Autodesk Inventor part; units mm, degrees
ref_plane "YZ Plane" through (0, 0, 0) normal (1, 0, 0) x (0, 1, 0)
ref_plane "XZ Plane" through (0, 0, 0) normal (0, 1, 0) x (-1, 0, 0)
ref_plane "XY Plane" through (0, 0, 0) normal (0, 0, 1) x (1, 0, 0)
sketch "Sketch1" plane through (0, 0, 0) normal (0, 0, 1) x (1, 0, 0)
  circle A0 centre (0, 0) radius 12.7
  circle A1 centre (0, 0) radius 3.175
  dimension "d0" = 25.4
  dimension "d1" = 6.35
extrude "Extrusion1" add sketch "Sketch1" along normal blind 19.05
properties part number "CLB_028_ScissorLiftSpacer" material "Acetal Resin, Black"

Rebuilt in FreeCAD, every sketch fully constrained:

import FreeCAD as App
import Part
import Sketcher
from FreeCAD import Vector
Q = App.Units.Quantity

doc = App.newDocument("Part")
params = doc.addObject("Spreadsheet::Sheet", "Params")
for row, (alias, value) in enumerate([
    ("sketch1_diameter", "1 in"),
    ("sketch1_diameter2", "0.25 in"),
    ("pad1_length", "0.75 in"),
], start=1):
    params.set(f"A{row}", alias)
    params.set(f"B{row}", "=" + value)
    params.setAlias(f"B{row}", alias)

body = doc.addObject("PartDesign::Body", "Body")

# Sketch on XY plane
sketch1 = doc.addObject("Sketcher::SketchObject", "Sketch")
body.addObject(sketch1)
sketch1.AttachmentSupport = (doc.XY_Plane, [""])
sketch1.MapMode = "FlatFace"
sketch1.addGeometry(Part.Circle(Vector(0, 0, 0), Vector(0, 0, 1), 12.7), False)
sketch1.addGeometry(Part.Circle(Vector(0, 0, 0), Vector(0, 0, 1), 3.2), False)
sketch1.addConstraint(Sketcher.Constraint("Coincident", 0, 3, -1, 1))
sketch1.addConstraint(Sketcher.Constraint("Coincident", 1, 3, -1, 1))
sketch1.addConstraint(Sketcher.Constraint("Diameter", 0, Q("1 in")))
sketch1.addConstraint(Sketcher.Constraint("Diameter", 1, Q("0.25 in")))
sketch1.setExpression("Constraints[2]", "Params.sketch1_diameter")
sketch1.setExpression("Constraints[3]", "Params.sketch1_diameter2")
pad1 = doc.addObject("PartDesign::Pad", "Pad")
body.addObject(pad1)
pad1.Profile = sketch1
pad1.setExpression("Length", "Params.pad1_length")

doc.recompute()
